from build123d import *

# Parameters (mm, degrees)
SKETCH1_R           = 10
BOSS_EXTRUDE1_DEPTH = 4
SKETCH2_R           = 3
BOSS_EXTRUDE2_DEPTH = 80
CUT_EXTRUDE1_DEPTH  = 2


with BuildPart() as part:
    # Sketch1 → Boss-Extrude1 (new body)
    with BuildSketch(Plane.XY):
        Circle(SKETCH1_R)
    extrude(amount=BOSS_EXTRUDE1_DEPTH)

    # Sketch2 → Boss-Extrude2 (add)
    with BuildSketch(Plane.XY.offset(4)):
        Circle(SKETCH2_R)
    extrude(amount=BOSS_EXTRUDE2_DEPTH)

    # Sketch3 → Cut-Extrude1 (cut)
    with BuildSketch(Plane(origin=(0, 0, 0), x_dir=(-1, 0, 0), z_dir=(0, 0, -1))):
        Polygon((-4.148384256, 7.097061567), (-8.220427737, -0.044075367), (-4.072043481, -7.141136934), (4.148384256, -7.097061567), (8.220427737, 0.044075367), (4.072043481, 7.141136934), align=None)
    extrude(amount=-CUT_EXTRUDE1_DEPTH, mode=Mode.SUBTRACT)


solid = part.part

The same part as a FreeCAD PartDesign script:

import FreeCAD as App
import Part
import Sketcher
Q = App.Units.Quantity


def add_polygon(sketch, points):
    """Adds a closed chain of lines whose ends are joined by coincident constraints."""
    first, n = sketch.GeometryCount, len(points)
    for a, b in zip(points, points[1:] + points[:1]):
        sketch.addGeometry(Part.LineSegment(App.Vector(*a, 0), App.Vector(*b, 0)), False)
    for i in range(n):
        sketch.addConstraint(Sketcher.Constraint("Coincident", first + i, 2, first + (i + 1) % n, 1))

doc = App.newDocument("Part")
params = doc.addObject("Spreadsheet::Sheet", "Params")
for row, (alias, value) in enumerate([
    ("sketch1_diameter", "20 mm"),
    ("pad1_length", "4 mm"),
    ("sketch2_diameter", "6 mm"),
    ("pad2_length", "80 mm"),
    ("pocket1_length", "2 mm"),
], start=1):
    params.set(f"A{row}", alias)
    params.set(f"B{row}", "=" + value)
    params.setAlias(f"B{row}", alias)

body = doc.addObject("PartDesign::Body", "Body")

sketch1 = doc.addObject("Sketcher::SketchObject", "Sketch")
body.addObject(sketch1)
sketch1.AttachmentSupport = (doc.XY_Plane, [""])
sketch1.MapMode = "FlatFace"
sketch1.addGeometry(Part.Circle(App.Vector(0, 0, 0), App.Vector(0, 0, 1), 10), False)
sketch1.addConstraint([
    Sketcher.Constraint("Coincident", 0, 3, -1, 1),
    Sketcher.Constraint("Diameter", 0, Q("20 mm")),
])
sketch1.setExpression("Constraints[1]", "Params.sketch1_diameter")
pad1 = doc.addObject("PartDesign::Pad", "Pad")
body.addObject(pad1)
pad1.Profile = sketch1
pad1.setExpression("Length", "Params.pad1_length")

sketch2 = doc.addObject("Sketcher::SketchObject", "Sketch001")
body.addObject(sketch2)
sketch2.AttachmentSupport = (doc.XY_Plane, [""])
sketch2.MapMode = "FlatFace"
sketch2.AttachmentOffset = App.Placement(App.Vector(0, 0, 4), App.Rotation())
sketch2.addGeometry(Part.Circle(App.Vector(0, 0, 0), App.Vector(0, 0, 1), 3), False)
sketch2.addConstraint([
    Sketcher.Constraint("Coincident", 0, 3, -1, 1),
    Sketcher.Constraint("Diameter", 0, Q("6 mm")),
])
sketch2.setExpression("Constraints[1]", "Params.sketch2_diameter")
pad2 = doc.addObject("PartDesign::Pad", "Pad001")
body.addObject(pad2)
pad2.Profile = sketch2
pad2.setExpression("Length", "Params.pad2_length")

sketch3 = doc.addObject("Sketcher::SketchObject", "Sketch002")
body.addObject(sketch3)
sketch3.AttachmentSupport = (doc.XY_Plane, [""])
sketch3.MapMode = "FlatFace"
add_polygon(sketch3, [(4, 7), (8, 0), (4, -7), (-4, -7), (-8, 0), (-4, 7)])
sketch3.addConstraint([
    Sketcher.Constraint("Symmetric", 0, 2, 3, 2, -1, 1),
    Sketcher.Constraint("Symmetric", 1, 2, 4, 2, -1, 1),
    Sketcher.Constraint("Symmetric", 2, 2, 5, 2, -1, 1),
    Sketcher.Constraint("Equal", 0, 1),
    Sketcher.Constraint("Equal", 1, 2),
    Sketcher.Constraint("DistanceY", 2, 2, 4, 2, Q("14.238199 mm")),
    Sketcher.Constraint("DistanceY", 2, 2, -1, 1, Q("7.097062 mm")),
    Sketcher.Constraint("DistanceY", 1, 2, 0, 2, Q("7.097062 mm")),
    Sketcher.Constraint("DistanceX", 2, 2, 0, 2, Q("12.368812 mm")),
])
pocket1 = doc.addObject("PartDesign::Pocket", "Pocket")
body.addObject(pocket1)
pocket1.Profile = sketch3
pocket1.setExpression("Length", "Params.pocket1_length")
pocket1.Reversed = True

doc.recompute()
